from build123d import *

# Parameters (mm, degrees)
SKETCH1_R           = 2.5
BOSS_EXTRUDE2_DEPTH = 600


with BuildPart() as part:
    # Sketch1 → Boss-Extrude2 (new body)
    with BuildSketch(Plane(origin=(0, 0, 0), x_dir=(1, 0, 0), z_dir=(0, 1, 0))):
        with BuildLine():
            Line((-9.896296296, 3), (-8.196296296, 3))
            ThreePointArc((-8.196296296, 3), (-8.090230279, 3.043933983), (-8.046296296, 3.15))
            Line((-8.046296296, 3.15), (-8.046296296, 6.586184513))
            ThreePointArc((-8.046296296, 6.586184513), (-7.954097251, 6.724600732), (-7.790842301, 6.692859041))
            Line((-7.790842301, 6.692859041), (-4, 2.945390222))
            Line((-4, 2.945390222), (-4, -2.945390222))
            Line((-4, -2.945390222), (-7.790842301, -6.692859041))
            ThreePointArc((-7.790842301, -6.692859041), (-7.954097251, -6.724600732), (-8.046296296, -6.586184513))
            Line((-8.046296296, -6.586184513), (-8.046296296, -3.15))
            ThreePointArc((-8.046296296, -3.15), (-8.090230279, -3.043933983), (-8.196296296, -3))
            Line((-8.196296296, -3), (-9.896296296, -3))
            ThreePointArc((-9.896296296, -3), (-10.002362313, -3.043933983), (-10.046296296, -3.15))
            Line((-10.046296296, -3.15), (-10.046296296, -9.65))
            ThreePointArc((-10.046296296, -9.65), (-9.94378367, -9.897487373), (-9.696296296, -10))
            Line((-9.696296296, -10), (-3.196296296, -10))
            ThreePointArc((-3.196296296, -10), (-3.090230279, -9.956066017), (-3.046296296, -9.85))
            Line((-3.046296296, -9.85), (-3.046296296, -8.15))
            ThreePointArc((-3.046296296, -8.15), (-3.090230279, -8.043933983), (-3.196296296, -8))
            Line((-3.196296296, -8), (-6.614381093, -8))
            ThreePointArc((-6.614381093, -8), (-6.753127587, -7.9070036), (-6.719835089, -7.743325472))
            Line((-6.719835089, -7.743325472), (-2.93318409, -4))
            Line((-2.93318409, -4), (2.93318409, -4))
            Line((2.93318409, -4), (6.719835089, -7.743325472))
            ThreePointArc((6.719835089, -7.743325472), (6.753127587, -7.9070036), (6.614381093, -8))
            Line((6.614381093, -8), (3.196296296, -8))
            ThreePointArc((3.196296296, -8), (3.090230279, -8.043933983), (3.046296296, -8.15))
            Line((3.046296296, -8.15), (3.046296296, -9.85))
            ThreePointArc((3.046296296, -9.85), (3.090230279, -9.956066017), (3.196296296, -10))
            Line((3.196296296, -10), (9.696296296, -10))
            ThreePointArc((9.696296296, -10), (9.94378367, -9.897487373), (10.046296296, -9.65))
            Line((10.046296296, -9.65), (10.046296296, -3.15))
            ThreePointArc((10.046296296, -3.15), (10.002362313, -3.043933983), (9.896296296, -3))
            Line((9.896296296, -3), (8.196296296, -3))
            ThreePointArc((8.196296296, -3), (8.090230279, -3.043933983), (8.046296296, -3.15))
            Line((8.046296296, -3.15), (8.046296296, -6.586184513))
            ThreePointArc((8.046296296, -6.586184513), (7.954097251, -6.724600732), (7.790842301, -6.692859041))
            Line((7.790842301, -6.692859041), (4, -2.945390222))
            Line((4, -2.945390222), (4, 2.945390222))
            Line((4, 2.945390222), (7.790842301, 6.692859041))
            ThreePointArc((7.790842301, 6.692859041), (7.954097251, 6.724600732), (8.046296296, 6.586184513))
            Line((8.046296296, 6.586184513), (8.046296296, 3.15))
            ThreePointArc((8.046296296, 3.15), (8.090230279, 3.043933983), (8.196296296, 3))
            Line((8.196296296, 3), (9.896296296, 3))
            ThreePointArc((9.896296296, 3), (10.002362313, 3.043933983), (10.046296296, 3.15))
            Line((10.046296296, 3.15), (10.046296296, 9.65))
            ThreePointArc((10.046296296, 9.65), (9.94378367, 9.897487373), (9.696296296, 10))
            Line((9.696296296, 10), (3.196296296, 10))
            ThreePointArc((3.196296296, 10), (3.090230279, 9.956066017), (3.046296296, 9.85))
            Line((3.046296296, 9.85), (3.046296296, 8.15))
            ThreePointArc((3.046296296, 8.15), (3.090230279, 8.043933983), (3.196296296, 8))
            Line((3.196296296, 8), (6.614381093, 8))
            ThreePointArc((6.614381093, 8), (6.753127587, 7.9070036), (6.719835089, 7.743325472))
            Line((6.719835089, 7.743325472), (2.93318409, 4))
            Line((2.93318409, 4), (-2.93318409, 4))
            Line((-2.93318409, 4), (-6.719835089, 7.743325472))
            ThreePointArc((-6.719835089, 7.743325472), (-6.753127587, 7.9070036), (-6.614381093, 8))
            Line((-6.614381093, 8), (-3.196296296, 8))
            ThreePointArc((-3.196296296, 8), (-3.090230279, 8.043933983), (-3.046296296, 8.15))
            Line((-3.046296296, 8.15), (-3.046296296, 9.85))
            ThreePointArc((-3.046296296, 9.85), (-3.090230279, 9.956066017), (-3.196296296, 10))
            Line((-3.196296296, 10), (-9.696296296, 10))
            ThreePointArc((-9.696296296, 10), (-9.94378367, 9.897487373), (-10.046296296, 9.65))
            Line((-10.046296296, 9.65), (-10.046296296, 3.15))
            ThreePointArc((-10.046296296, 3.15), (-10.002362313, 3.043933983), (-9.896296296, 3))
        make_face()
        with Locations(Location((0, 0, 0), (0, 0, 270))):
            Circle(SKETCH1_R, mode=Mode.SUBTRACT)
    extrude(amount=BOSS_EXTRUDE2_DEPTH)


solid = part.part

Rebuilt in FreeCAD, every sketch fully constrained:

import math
import FreeCAD as App
import Part
import Sketcher
from FreeCAD import Vector
Q = App.Units.Quantity

doc = App.newDocument("Part")
body = doc.addObject("PartDesign::Body", "Body")

sketch1 = body.newObject("Sketcher::SketchObject", "Sketch")
sketch1.AttachmentSupport = (doc.getObject("XZ_Plane"), [""])
sketch1.MapMode = "FlatFace"
sketch1.addGeometry(Part.LineSegment(Vector(-9.896296, -3, 0), Vector(-8.196296, -3, 0)), False)
sketch1.addGeometry(Part.ArcOfCircle(Part.Circle(Vector(-8.196296, -3.15, 0), Vector(0, 0, 1), 0.15), math.radians(0), math.radians(90)), False)
sketch1.addGeometry(Part.LineSegment(Vector(-8.046296, -3.15, 0), Vector(-8.046296, -6.586185, 0)), False)
sketch1.addGeometry(Part.ArcOfCircle(Part.Circle(Vector(-7.896296, -6.586185, 0), Vector(0, 0, 1), 0.15), math.radians(180), math.radians(314.670338)), False)
sketch1.addGeometry(Part.LineSegment(Vector(-7.790842, -6.692859, 0), Vector(-4, -2.94539, 0)), False)
sketch1.addGeometry(Part.LineSegment(Vector(-4, -2.94539, 0), Vector(-4, 2.94539, 0)), False)
sketch1.addGeometry(Part.LineSegment(Vector(-4, 2.94539, 0), Vector(-7.790842, 6.692859, 0)), False)
sketch1.addGeometry(Part.ArcOfCircle(Part.Circle(Vector(-7.896296, 6.586185, 0), Vector(0, 0, 1), 0.15), math.radians(45.329662), math.radians(180)), False)
sketch1.addGeometry(Part.LineSegment(Vector(-8.046296, 6.586185, 0), Vector(-8.046296, 3.15, 0)), False)
sketch1.addGeometry(Part.ArcOfCircle(Part.Circle(Vector(-8.196296, 3.15, 0), Vector(0, 0, 1), 0.15), math.radians(-90), math.radians(0)), False)
sketch1.addGeometry(Part.LineSegment(Vector(-8.196296, 3, 0), Vector(-9.896296, 3, 0)), False)
sketch1.addGeometry(Part.ArcOfCircle(Part.Circle(Vector(-9.896296, 3.15, 0), Vector(0, 0, 1), 0.15), math.radians(-180), math.radians(-90)), False)
sketch1.addGeometry(Part.LineSegment(Vector(-10.046296, 3.15, 0), Vector(-10.046296, 9.65, 0)), False)
sketch1.addGeometry(Part.ArcOfCircle(Part.Circle(Vector(-9.696296, 9.65, 0), Vector(0, 0, 1), 0.35), math.radians(90), math.radians(180)), False)
sketch1.addGeometry(Part.LineSegment(Vector(-9.696296, 10, 0), Vector(-3.196296, 10, 0)), False)
sketch1.addGeometry(Part.ArcOfCircle(Part.Circle(Vector(-3.196296, 9.85, 0), Vector(0, 0, 1), 0.15), math.radians(0), math.radians(90)), False)
sketch1.addGeometry(Part.LineSegment(Vector(-3.046296, 9.85, 0), Vector(-3.046296, 8.15, 0)), False)
sketch1.addGeometry(Part.ArcOfCircle(Part.Circle(Vector(-3.196296, 8.15, 0), Vector(0, 0, 1), 0.15), math.radians(-90), math.radians(0)), False)
sketch1.addGeometry(Part.LineSegment(Vector(-3.196296, 8, 0), Vector(-6.614381, 8, 0)), False)
sketch1.addGeometry(Part.ArcOfCircle(Part.Circle(Vector(-6.614381, 7.85, 0), Vector(0, 0, 1), 0.15), math.radians(90), math.radians(225.329661)), False)
sketch1.addGeometry(Part.LineSegment(Vector(-6.719835, 7.743325, 0), Vector(-2.933184, 4, 0)), False)
sketch1.addGeometry(Part.LineSegment(Vector(-2.933184, 4, 0), Vector(2.933184, 4, 0)), False)
sketch1.addGeometry(Part.LineSegment(Vector(2.933184, 4, 0), Vector(6.719835, 7.743325, 0)), False)
sketch1.addGeometry(Part.ArcOfCircle(Part.Circle(Vector(6.614381, 7.85, 0), Vector(0, 0, 1), 0.15), math.radians(-45.329661), math.radians(90)), False)
sketch1.addGeometry(Part.LineSegment(Vector(6.614381, 8, 0), Vector(3.196296, 8, 0)), False)
sketch1.addGeometry(Part.ArcOfCircle(Part.Circle(Vector(3.196296, 8.15, 0), Vector(0, 0, 1), 0.15), math.radians(-180), math.radians(-90)), False)
sketch1.addGeometry(Part.LineSegment(Vector(3.046296, 8.15, 0), Vector(3.046296, 9.85, 0)), False)
sketch1.addGeometry(Part.ArcOfCircle(Part.Circle(Vector(3.196296, 9.85, 0), Vector(0, 0, 1), 0.15), math.radians(90), math.radians(180)), False)
sketch1.addGeometry(Part.LineSegment(Vector(3.196296, 10, 0), Vector(9.696296, 10, 0)), False)
sketch1.addGeometry(Part.ArcOfCircle(Part.Circle(Vector(9.696296, 9.65, 0), Vector(0, 0, 1), 0.35), math.radians(0), math.radians(90)), False)
sketch1.addGeometry(Part.LineSegment(Vector(10.046296, 9.65, 0), Vector(10.046296, 3.15, 0)), False)
sketch1.addGeometry(Part.ArcOfCircle(Part.Circle(Vector(9.896296, 3.15, 0), Vector(0, 0, 1), 0.15), math.radians(-90), math.radians(0)), False)
sketch1.addGeometry(Part.LineSegment(Vector(9.896296, 3, 0), Vector(8.196296, 3, 0)), False)
sketch1.addGeometry(Part.ArcOfCircle(Part.Circle(Vector(8.196296, 3.15, 0), Vector(0, 0, 1), 0.15), math.radians(-180), math.radians(-90)), False)
sketch1.addGeometry(Part.LineSegment(Vector(8.046296, 3.15, 0), Vector(8.046296, 6.586185, 0)), False)
sketch1.addGeometry(Part.ArcOfCircle(Part.Circle(Vector(7.896296, 6.586185, 0), Vector(0, 0, 1), 0.15), math.radians(0), math.radians(134.670338)), False)
sketch1.addGeometry(Part.LineSegment(Vector(7.790842, 6.692859, 0), Vector(4, 2.94539, 0)), False)
sketch1.addGeometry(Part.LineSegment(Vector(4, 2.94539, 0), Vector(4, -2.94539, 0)), False)
sketch1.addGeometry(Part.LineSegment(Vector(4, -2.94539, 0), Vector(7.790842, -6.692859, 0)), False)
sketch1.addGeometry(Part.ArcOfCircle(Part.Circle(Vector(7.896296, -6.586185, 0), Vector(0, 0, 1), 0.15), math.radians(-134.670338), math.radians(0)), False)
sketch1.addGeometry(Part.LineSegment(Vector(8.046296, -6.586185, 0), Vector(8.046296, -3.15, 0)), False)
sketch1.addGeometry(Part.ArcOfCircle(Part.Circle(Vector(8.196296, -3.15, 0), Vector(0, 0, 1), 0.15), math.radians(90), math.radians(180)), False)
sketch1.addGeometry(Part.LineSegment(Vector(8.196296, -3, 0), Vector(9.896296, -3, 0)), False)
sketch1.addGeometry(Part.ArcOfCircle(Part.Circle(Vector(9.896296, -3.15, 0), Vector(0, 0, 1), 0.15), math.radians(0), math.radians(90)), False)
sketch1.addGeometry(Part.LineSegment(Vector(10.046296, -3.15, 0), Vector(10.046296, -9.65, 0)), False)
sketch1.addGeometry(Part.ArcOfCircle(Part.Circle(Vector(9.696296, -9.65, 0), Vector(0, 0, 1), 0.35), math.radians(-90), math.radians(0)), False)
sketch1.addGeometry(Part.LineSegment(Vector(9.696296, -10, 0), Vector(3.196296, -10, 0)), False)
sketch1.addGeometry(Part.ArcOfCircle(Part.Circle(Vector(3.196296, -9.85, 0), Vector(0, 0, 1), 0.15), math.radians(-180), math.radians(-90)), False)
sketch1.addGeometry(Part.LineSegment(Vector(3.046296, -9.85, 0), Vector(3.046296, -8.15, 0)), False)
sketch1.addGeometry(Part.ArcOfCircle(Part.Circle(Vector(3.196296, -8.15, 0), Vector(0, 0, 1), 0.15), math.radians(90), math.radians(180)), False)
sketch1.addGeometry(Part.LineSegment(Vector(3.196296, -8, 0), Vector(6.614381, -8, 0)), False)
sketch1.addGeometry(Part.ArcOfCircle(Part.Circle(Vector(6.614381, -7.85, 0), Vector(0, 0, 1), 0.15), math.radians(-90), math.radians(45.329661)), False)
sketch1.addGeometry(Part.LineSegment(Vector(6.719835, -7.743325, 0), Vector(2.933184, -4, 0)), False)
sketch1.addGeometry(Part.LineSegment(Vector(2.933184, -4, 0), Vector(-2.933184, -4, 0)), False)
sketch1.addGeometry(Part.LineSegment(Vector(-2.933184, -4, 0), Vector(-6.719835, -7.743325, 0)), False)
sketch1.addGeometry(Part.ArcOfCircle(Part.Circle(Vector(-6.614381, -7.85, 0), Vector(0, 0, 1), 0.15), math.radians(134.670339), math.radians(270)), False)
sketch1.addGeometry(Part.LineSegment(Vector(-6.614381, -8, 0), Vector(-3.196296, -8, 0)), False)
sketch1.addGeometry(Part.ArcOfCircle(Part.Circle(Vector(-3.196296, -8.15, 0), Vector(0, 0, 1), 0.15), math.radians(0), math.radians(90)), False)
sketch1.addGeometry(Part.LineSegment(Vector(-3.046296, -8.15, 0), Vector(-3.046296, -9.85, 0)), False)
sketch1.addGeometry(Part.ArcOfCircle(Part.Circle(Vector(-3.196296, -9.85, 0), Vector(0, 0, 1), 0.15), math.radians(-90), math.radians(0)), False)
sketch1.addGeometry(Part.LineSegment(Vector(-3.196296, -10, 0), Vector(-9.696296, -10, 0)), False)
sketch1.addGeometry(Part.ArcOfCircle(Part.Circle(Vector(-9.696296, -9.65, 0), Vector(0, 0, 1), 0.35), math.radians(180), math.radians(270)), False)
sketch1.addGeometry(Part.LineSegment(Vector(-10.046296, -9.65, 0), Vector(-10.046296, -3.15, 0)), False)
sketch1.addGeometry(Part.ArcOfCircle(Part.Circle(Vector(-9.896296, -3.15, 0), Vector(0, 0, 1), 0.15), math.radians(90), math.radians(180)), False)
sketch1.addGeometry(Part.Circle(Vector(0, 0, 0), Vector(0, 0, 1), 2.5), False)
sketch1.addConstraint(Sketcher.Constraint("Tangent", 0, 2, 1, 2))
sketch1.addConstraint(Sketcher.Constraint("Tangent", 1, 1, 2, 1))
sketch1.addConstraint(Sketcher.Constraint("Tangent", 2, 2, 3, 1))
sketch1.addConstraint(Sketcher.Constraint("Tangent", 3, 2, 4, 1))
sketch1.addConstraint(Sketcher.Constraint("Coincident", 4, 2, 5, 1))
sketch1.addConstraint(Sketcher.Constraint("Coincident", 5, 2, 6, 1))
sketch1.addConstraint(Sketcher.Constraint("Tangent", 6, 2, 7, 1))
sketch1.addConstraint(Sketcher.Constraint("Tangent", 7, 2, 8, 1))
sketch1.addConstraint(Sketcher.Constraint("Tangent", 8, 2, 9, 2))
sketch1.addConstraint(Sketcher.Constraint("Tangent", 9, 1, 10, 1))
sketch1.addConstraint(Sketcher.Constraint("Tangent", 10, 2, 11, 2))
sketch1.addConstraint(Sketcher.Constraint("Tangent", 11, 1, 12, 1))
sketch1.addConstraint(Sketcher.Constraint("Tangent", 12, 2, 13, 2))
sketch1.addConstraint(Sketcher.Constraint("Tangent", 13, 1, 14, 1))
sketch1.addConstraint(Sketcher.Constraint("Tangent", 14, 2, 15, 2))
sketch1.addConstraint(Sketcher.Constraint("Tangent", 15, 1, 16, 1))
sketch1.addConstraint(Sketcher.Constraint("Tangent", 16, 2, 17, 2))
sketch1.addConstraint(Sketcher.Constraint("Tangent", 17, 1, 18, 1))
sketch1.addConstraint(Sketcher.Constraint("Tangent", 18, 2, 19, 1))
sketch1.addConstraint(Sketcher.Constraint("Tangent", 19, 2, 20, 1))
sketch1.addConstraint(Sketcher.Constraint("Coincident", 20, 2, 21, 1))
sketch1.addConstraint(Sketcher.Constraint("Coincident", 21, 2, 22, 1))
sketch1.addConstraint(Sketcher.Constraint("Tangent", 22, 2, 23, 1))
sketch1.addConstraint(Sketcher.Constraint("Tangent", 23, 2, 24, 1))
sketch1.addConstraint(Sketcher.Constraint("Tangent", 24, 2, 25, 2))
sketch1.addConstraint(Sketcher.Constraint("Tangent", 25, 1, 26, 1))
sketch1.addConstraint(Sketcher.Constraint("Tangent", 26, 2, 27, 2))
sketch1.addConstraint(Sketcher.Constraint("Tangent", 27, 1, 28, 1))
sketch1.addConstraint(Sketcher.Constraint("Tangent", 28, 2, 29, 2))
sketch1.addConstraint(Sketcher.Constraint("Tangent", 29, 1, 30, 1))
sketch1.addConstraint(Sketcher.Constraint("Tangent", 30, 2, 31, 2))
sketch1.addConstraint(Sketcher.Constraint("Tangent", 31, 1, 32, 1))
sketch1.addConstraint(Sketcher.Constraint("Tangent", 32, 2, 33, 2))
sketch1.addConstraint(Sketcher.Constraint("Tangent", 33, 1, 34, 1))
sketch1.addConstraint(Sketcher.Constraint("Tangent", 34, 2, 35, 1))
sketch1.addConstraint(Sketcher.Constraint("Tangent", 35, 2, 36, 1))
sketch1.addConstraint(Sketcher.Constraint("Coincident", 36, 2, 37, 1))
sketch1.addConstraint(Sketcher.Constraint("Coincident", 37, 2, 38, 1))
sketch1.addConstraint(Sketcher.Constraint("Tangent", 38, 2, 39, 1))
sketch1.addConstraint(Sketcher.Constraint("Tangent", 39, 2, 40, 1))
sketch1.addConstraint(Sketcher.Constraint("Tangent", 40, 2, 41, 2))
sketch1.addConstraint(Sketcher.Constraint("Tangent", 41, 1, 42, 1))
sketch1.addConstraint(Sketcher.Constraint("Tangent", 42, 2, 43, 2))
sketch1.addConstraint(Sketcher.Constraint("Tangent", 43, 1, 44, 1))
sketch1.addConstraint(Sketcher.Constraint("Tangent", 44, 2, 45, 2))
sketch1.addConstraint(Sketcher.Constraint("Tangent", 45, 1, 46, 1))
sketch1.addConstraint(Sketcher.Constraint("Tangent", 46, 2, 47, 2))
sketch1.addConstraint(Sketcher.Constraint("Tangent", 47, 1, 48, 1))
sketch1.addConstraint(Sketcher.Constraint("Tangent", 48, 2, 49, 2))
sketch1.addConstraint(Sketcher.Constraint("Tangent", 49, 1, 50, 1))
sketch1.addConstraint(Sketcher.Constraint("Tangent", 50, 2, 51, 1))
sketch1.addConstraint(Sketcher.Constraint("Tangent", 51, 2, 52, 1))
sketch1.addConstraint(Sketcher.Constraint("Coincident", 52, 2, 53, 1))
sketch1.addConstraint(Sketcher.Constraint("Coincident", 53, 2, 54, 1))
sketch1.addConstraint(Sketcher.Constraint("Tangent", 54, 2, 55, 1))
sketch1.addConstraint(Sketcher.Constraint("Tangent", 55, 2, 56, 1))
sketch1.addConstraint(Sketcher.Constraint("Tangent", 56, 2, 57, 2))
sketch1.addConstraint(Sketcher.Constraint("Tangent", 57, 1, 58, 1))
sketch1.addConstraint(Sketcher.Constraint("Tangent", 58, 2, 59, 2))
sketch1.addConstraint(Sketcher.Constraint("Tangent", 59, 1, 60, 1))
sketch1.addConstraint(Sketcher.Constraint("Tangent", 60, 2, 61, 2))
sketch1.addConstraint(Sketcher.Constraint("Tangent", 61, 1, 62, 1))
sketch1.addConstraint(Sketcher.Constraint("Tangent", 62, 2, 63, 2))
sketch1.addConstraint(Sketcher.Constraint("Tangent", 63, 1, 0, 1))
sketch1.addConstraint(Sketcher.Constraint("Horizontal", 0))
sketch1.addConstraint(Sketcher.Constraint("Vertical", 2))
sketch1.addConstraint(Sketcher.Constraint("Vertical", 5))
sketch1.addConstraint(Sketcher.Constraint("Vertical", 8))
sketch1.addConstraint(Sketcher.Constraint("Horizontal", 10))
sketch1.addConstraint(Sketcher.Constraint("Vertical", 12))
sketch1.addConstraint(Sketcher.Constraint("Horizontal", 14))
sketch1.addConstraint(Sketcher.Constraint("Vertical", 16))
sketch1.addConstraint(Sketcher.Constraint("Horizontal", 18))
sketch1.addConstraint(Sketcher.Constraint("Horizontal", 21))
sketch1.addConstraint(Sketcher.Constraint("Horizontal", 24))
sketch1.addConstraint(Sketcher.Constraint("Vertical", 26))
sketch1.addConstraint(Sketcher.Constraint("Horizontal", 28))
sketch1.addConstraint(Sketcher.Constraint("Vertical", 30))
sketch1.addConstraint(Sketcher.Constraint("Horizontal", 32))
sketch1.addConstraint(Sketcher.Constraint("Vertical", 34))
sketch1.addConstraint(Sketcher.Constraint("Vertical", 37))
sketch1.addConstraint(Sketcher.Constraint("Vertical", 40))
sketch1.addConstraint(Sketcher.Constraint("Horizontal", 42))
sketch1.addConstraint(Sketcher.Constraint("Vertical", 44))
sketch1.addConstraint(Sketcher.Constraint("Horizontal", 46))
sketch1.addConstraint(Sketcher.Constraint("Vertical", 48))
sketch1.addConstraint(Sketcher.Constraint("Horizontal", 50))
sketch1.addConstraint(Sketcher.Constraint("Horizontal", 53))
sketch1.addConstraint(Sketcher.Constraint("Horizontal", 56))
sketch1.addConstraint(Sketcher.Constraint("Vertical", 58))
sketch1.addConstraint(Sketcher.Constraint("Horizontal", 60))
sketch1.addConstraint(Sketcher.Constraint("Vertical", 62))
sketch1.addConstraint(Sketcher.Constraint("Coincident", 64, 3, -1, 1))
sketch1.addConstraint(Sketcher.Constraint("Equal", 1, 3))
sketch1.addConstraint(Sketcher.Constraint("Equal", 3, 7))
sketch1.addConstraint(Sketcher.Constraint("Equal", 7, 9))
sketch1.addConstraint(Sketcher.Constraint("Equal", 9, 11))
sketch1.addConstraint(Sketcher.Constraint("Equal", 11, 15))
sketch1.addConstraint(Sketcher.Constraint("Equal", 15, 17))
sketch1.addConstraint(Sketcher.Constraint("Equal", 17, 19))
sketch1.addConstraint(Sketcher.Constraint("Equal", 19, 23))
sketch1.addConstraint(Sketcher.Constraint("Equal", 23, 25))
sketch1.addConstraint(Sketcher.Constraint("Equal", 25, 27))
sketch1.addConstraint(Sketcher.Constraint("Equal", 13, 29))
sketch1.addConstraint(Sketcher.Constraint("Equal", 27, 31))
sketch1.addConstraint(Sketcher.Constraint("Equal", 31, 33))
sketch1.addConstraint(Sketcher.Constraint("Equal", 33, 35))
sketch1.addConstraint(Sketcher.Constraint("Equal", 35, 39))
sketch1.addConstraint(Sketcher.Constraint("Equal", 39, 41))
sketch1.addConstraint(Sketcher.Constraint("Equal", 41, 43))
sketch1.addConstraint(Sketcher.Constraint("Equal", 29, 45))
sketch1.addConstraint(Sketcher.Constraint("Equal", 43, 47))
sketch1.addConstraint(Sketcher.Constraint("Equal", 47, 49))
sketch1.addConstraint(Sketcher.Constraint("Equal", 49, 51))
sketch1.addConstraint(Sketcher.Constraint("Equal", 51, 55))
sketch1.addConstraint(Sketcher.Constraint("Equal", 55, 57))
sketch1.addConstraint(Sketcher.Constraint("Equal", 57, 59))
sketch1.addConstraint(Sketcher.Constraint("Equal", 45, 61))
sketch1.addConstraint(Sketcher.Constraint("Equal", 59, 63))
sketch1.addConstraint(Sketcher.Constraint("Symmetric", 1, 3, 33, 3, -1, 1))
sketch1.addConstraint(Sketcher.Constraint("Symmetric", 7, 3, 39, 3, -1, 1))
sketch1.addConstraint(Sketcher.Constraint("Symmetric", 11, 3, 43, 3, -1, 1))
sketch1.addConstraint(Sketcher.Constraint("Symmetric", 15, 3, 47, 3, -1, 1))
sketch1.addConstraint(Sketcher.Constraint("Symmetric", 19, 3, 51, 3, -1, 1))
sketch1.addConstraint(Sketcher.Constraint("Symmetric", 23, 3, 55, 3, -1, 1))
sketch1.addConstraint(Sketcher.Constraint("Symmetric", 27, 3, 59, 3, -1, 1))
sketch1.addConstraint(Sketcher.Constraint("Symmetric", 3, 2, 35, 2, -1, 1))
sketch1.addConstraint(Sketcher.Constraint("Symmetric", 5, 2, 37, 2, -1, 1))
sketch1.addConstraint(Sketcher.Constraint("Symmetric", 20, 2, 52, 2, -1, 1))
sketch1.addConstraint(Sketcher.Constraint("Symmetric", 19, 3, 23, 3, -2))
sketch1.addConstraint(Sketcher.Constraint("Symmetric", 15, 3, 27, 3, -2))
sketch1.addConstraint(Sketcher.Constraint("Symmetric", 11, 3, 31, 3, -2))
sketch1.addConstraint(Sketcher.Constraint("Symmetric", 7, 3, 35, 3, -2))
sketch1.addConstraint(Sketcher.Constraint("Parallel", 6, 20))
sketch1.addConstraint(Sketcher.Constraint("Parallel", 4, 22))
sketch1.addConstraint(Sketcher.Constraint("Parallel", 36, 54))
sketch1.addConstraint(Sketcher.Constraint("Horizontal", 19, 2, 22, 2))
sketch1.addConstraint(Sketcher.Constraint("Vertical", 13, 3, 61, 3))
sketch1.addConstraint(Sketcher.Constraint("Equal", 60, 12))
sketch1.addConstraint(Sketcher.Constraint("Equal", 42, 16))
sketch1.addConstraint(Sketcher.Constraint("Diameter", 64, Q("5 mm")))
sketch1.addConstraint(Sketcher.Constraint("Radius", 1, Q("0.15 mm")))
sketch1.addConstraint(Sketcher.Constraint("Radius", 13, Q("0.35 mm")))
sketch1.addConstraint(Sketcher.Constraint("DistanceX", 0, 1, 0, 2, Q("1.7 mm")))
sketch1.addConstraint(Sketcher.Constraint("DistanceX", 14, 1, 14, 2, Q("6.5 mm")))
sketch1.addConstraint(Sketcher.Constraint("DistanceY", 0, 2, -1, 1, Q("3 mm")))
sketch1.addConstraint(Sketcher.Constraint("DistanceX", 4, 2, -1, 1, Q("4 mm")))
sketch1.addConstraint(Sketcher.Constraint("DistanceY", -1, 1, 20, 2, Q("4 mm")))
sketch1.addConstraint(Sketcher.Constraint("DistanceX", 21, 1, 21, 2, Q("5.866368 mm")))
sketch1.addConstraint(Sketcher.Constraint("DistanceY", 5, 1, 5, 2, Q("5.89078 mm")))
sketch1.addConstraint(Sketcher.Constraint("Distance", 4, Q("5.330479 mm")))
sketch1.addConstraint(Sketcher.Constraint("DistanceX", 18, 2, 18, 1, Q("3.418085 mm")))
pad1 = body.newObject("PartDesign::Pad", "Pad")
pad1.Profile = sketch1
pad1.Length = 600
pad1.Reversed = True

doc.recompute()
